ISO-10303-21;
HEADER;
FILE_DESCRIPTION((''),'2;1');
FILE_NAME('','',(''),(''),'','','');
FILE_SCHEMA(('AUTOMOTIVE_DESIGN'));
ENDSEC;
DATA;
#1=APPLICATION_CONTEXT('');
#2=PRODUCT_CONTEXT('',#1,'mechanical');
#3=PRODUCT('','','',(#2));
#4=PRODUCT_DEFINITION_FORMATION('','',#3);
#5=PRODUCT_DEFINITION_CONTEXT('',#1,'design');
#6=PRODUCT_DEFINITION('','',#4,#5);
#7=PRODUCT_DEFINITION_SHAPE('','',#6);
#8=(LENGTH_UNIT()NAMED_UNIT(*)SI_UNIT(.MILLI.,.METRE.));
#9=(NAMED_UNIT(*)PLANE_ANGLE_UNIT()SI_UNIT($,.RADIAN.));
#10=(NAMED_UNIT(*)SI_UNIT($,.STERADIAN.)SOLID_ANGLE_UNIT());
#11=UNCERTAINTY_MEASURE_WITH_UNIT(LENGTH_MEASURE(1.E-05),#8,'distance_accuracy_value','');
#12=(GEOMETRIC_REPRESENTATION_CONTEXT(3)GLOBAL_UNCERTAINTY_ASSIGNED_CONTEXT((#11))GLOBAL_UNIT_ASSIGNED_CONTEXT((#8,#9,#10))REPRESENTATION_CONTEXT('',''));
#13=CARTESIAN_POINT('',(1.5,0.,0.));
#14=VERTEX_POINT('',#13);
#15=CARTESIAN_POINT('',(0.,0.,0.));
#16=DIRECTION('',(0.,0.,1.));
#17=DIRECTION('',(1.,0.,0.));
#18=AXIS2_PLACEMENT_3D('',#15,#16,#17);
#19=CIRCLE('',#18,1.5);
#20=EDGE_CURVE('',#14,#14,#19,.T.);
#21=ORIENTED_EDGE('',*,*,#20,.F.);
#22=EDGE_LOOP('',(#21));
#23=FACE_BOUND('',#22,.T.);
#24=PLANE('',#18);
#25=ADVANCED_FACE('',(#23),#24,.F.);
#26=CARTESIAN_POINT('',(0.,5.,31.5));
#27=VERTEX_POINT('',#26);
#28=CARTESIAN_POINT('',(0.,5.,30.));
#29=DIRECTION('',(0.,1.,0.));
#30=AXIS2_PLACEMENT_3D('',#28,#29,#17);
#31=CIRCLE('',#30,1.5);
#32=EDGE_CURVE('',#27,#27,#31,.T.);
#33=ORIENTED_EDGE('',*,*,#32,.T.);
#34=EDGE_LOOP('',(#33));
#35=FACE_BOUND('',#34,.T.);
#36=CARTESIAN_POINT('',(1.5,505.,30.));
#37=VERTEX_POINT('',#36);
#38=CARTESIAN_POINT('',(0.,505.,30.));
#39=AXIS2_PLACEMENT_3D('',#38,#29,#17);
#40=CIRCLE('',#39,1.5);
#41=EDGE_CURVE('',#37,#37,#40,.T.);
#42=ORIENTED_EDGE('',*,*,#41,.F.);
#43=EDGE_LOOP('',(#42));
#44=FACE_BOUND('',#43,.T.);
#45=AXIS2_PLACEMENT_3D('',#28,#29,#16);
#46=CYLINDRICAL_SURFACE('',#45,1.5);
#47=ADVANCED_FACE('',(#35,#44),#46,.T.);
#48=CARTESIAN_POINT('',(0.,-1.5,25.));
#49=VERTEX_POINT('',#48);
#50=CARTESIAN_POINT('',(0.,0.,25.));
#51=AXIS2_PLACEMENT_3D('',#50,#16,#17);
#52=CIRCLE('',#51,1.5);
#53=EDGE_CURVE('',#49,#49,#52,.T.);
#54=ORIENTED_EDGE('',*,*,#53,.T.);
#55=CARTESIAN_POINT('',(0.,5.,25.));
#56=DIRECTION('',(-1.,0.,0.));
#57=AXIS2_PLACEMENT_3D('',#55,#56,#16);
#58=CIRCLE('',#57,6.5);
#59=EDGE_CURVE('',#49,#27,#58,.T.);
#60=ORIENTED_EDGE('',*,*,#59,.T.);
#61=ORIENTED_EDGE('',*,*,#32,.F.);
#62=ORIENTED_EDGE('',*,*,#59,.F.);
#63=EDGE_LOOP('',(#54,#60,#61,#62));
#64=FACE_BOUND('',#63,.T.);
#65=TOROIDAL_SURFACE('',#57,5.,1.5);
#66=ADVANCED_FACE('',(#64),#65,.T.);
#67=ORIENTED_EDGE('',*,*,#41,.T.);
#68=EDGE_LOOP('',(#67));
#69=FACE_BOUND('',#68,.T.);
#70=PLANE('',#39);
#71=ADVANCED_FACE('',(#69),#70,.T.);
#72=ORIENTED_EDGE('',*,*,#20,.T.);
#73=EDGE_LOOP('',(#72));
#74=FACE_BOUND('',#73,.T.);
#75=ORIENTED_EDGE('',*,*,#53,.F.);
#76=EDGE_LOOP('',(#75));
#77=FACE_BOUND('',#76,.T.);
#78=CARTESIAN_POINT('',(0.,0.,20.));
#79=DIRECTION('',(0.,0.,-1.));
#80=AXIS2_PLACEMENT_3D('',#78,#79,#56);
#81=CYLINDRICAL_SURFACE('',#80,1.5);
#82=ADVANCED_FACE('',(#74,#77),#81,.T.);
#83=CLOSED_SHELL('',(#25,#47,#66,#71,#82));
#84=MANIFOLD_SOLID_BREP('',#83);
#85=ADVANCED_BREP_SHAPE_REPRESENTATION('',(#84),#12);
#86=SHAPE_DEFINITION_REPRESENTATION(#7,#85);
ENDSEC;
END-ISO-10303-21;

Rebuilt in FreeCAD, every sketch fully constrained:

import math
import FreeCAD as App
import Part
import Sketcher
from FreeCAD import Vector

doc = App.newDocument("Part")
body = doc.addObject("PartDesign::Body", "Body")

# Sketch on XY plane
sketch1 = body.newObject("Sketcher::SketchObject", "Sketch")
sketch1.AttachmentSupport = (doc.getObject("XY_Plane"), [""])
sketch1.MapMode = "FlatFace"
sketch1.addGeometry(Part.Circle(Vector(0, 0, 0), Vector(0, 0, 1), 1.5), False)
sketch1.addConstraint(Sketcher.Constraint("Coincident", 0, 3, -1, 1))
sketch1.addConstraint(Sketcher.Constraint("Diameter", 0, 3.0))
pad1 = body.newObject("PartDesign::Pad", "Pad")
pad1.Profile = sketch1
pad1.Length = 20

# Sketch on XY plane
sketch2 = body.newObject("Sketcher::SketchObject", "Sketch001")
sketch2.AttachmentSupport = (doc.getObject("XY_Plane"), [""])
sketch2.MapMode = "FlatFace"
sketch2.AttachmentOffset = App.Placement(Vector(0, 0, 20), App.Rotation())
sketch2.addGeometry(Part.Circle(Vector(0, 0, 0), Vector(0, 0, 1), 1.5), False)
sketch2.addConstraint(Sketcher.Constraint("Coincident", 0, 3, -1, 1))
sketch2.addConstraint(Sketcher.Constraint("Diameter", 0, 3.0))

# Sketch on YZ plane
sketch3 = body.newObject("Sketcher::SketchObject", "Sketch002")
sketch3.AttachmentSupport = (doc.getObject("YZ_Plane"), [""])
sketch3.MapMode = "FlatFace"
sketch3.addGeometry(Part.LineSegment(Vector(0, 20, 0), Vector(0, 25, 0)), False)
sketch3.addGeometry(Part.ArcOfCircle(Part.Circle(Vector(5, 25, 0), Vector(0, 0, 1), 5), math.radians(90), math.radians(180)), False)
sketch3.addGeometry(Part.LineSegment(Vector(5, 30, 0), Vector(505, 30, 0)), False)
sketch3.addConstraint(Sketcher.Constraint("Tangent", 0, 2, 1, 2))
sketch3.addConstraint(Sketcher.Constraint("Tangent", 1, 1, 2, 1))
sketch3.addConstraint(Sketcher.Constraint("Vertical", 0))
sketch3.addConstraint(Sketcher.Constraint("Horizontal", 2))
sketch3.addConstraint(Sketcher.Constraint("PointOnObject", 0, 1, -2))
sketch3.addConstraint(Sketcher.Constraint("Radius", 1, 5.0))
sketch3.addConstraint(Sketcher.Constraint("DistanceX", 2, 1, 2, 2, 500.0))
sketch3.addConstraint(Sketcher.Constraint("DistanceY", 0, 1, 0, 2, 5.0))
sketch3.addConstraint(Sketcher.Constraint("DistanceY", -1, 1, 1, 3, 25.0))
doc.recompute()

additivepipe = body.newObject("PartDesign::AdditivePipe", "AdditivePipe")
additivepipe.Profile = sketch2
additivepipe.Spine = (sketch3, ["Edge1", "Edge2", "Edge3"])

doc.recompute()
